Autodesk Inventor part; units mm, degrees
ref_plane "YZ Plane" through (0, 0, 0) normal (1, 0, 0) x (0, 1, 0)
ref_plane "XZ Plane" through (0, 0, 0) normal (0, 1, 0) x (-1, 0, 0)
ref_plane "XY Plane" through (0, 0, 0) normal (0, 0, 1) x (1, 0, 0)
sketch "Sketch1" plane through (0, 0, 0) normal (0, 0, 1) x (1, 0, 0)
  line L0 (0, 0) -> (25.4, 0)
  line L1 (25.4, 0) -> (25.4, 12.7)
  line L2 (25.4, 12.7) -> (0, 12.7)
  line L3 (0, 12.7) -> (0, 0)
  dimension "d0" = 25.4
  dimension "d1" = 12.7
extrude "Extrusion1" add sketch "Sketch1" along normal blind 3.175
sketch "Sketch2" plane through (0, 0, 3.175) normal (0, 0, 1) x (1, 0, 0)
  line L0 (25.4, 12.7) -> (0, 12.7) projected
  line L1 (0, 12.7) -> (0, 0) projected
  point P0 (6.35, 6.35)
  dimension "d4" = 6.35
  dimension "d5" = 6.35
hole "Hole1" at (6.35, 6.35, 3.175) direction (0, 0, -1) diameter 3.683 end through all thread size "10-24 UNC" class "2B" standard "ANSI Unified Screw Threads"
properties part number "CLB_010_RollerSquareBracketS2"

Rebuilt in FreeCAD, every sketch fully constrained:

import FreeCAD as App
import Part
import Sketcher
from FreeCAD import Vector
Q = App.Units.Quantity

doc = App.newDocument("Part")
params = doc.addObject("Spreadsheet::Sheet", "Params")
for row, (alias, value) in enumerate([
    ("sketch1_width", "1 in"),
    ("sketch1_height", "0.5 in"),
    ("pad1_length", "0.125 in"),
    ("sketch2_diameter", "0.145 in"),
    ("hole_diameter", "0.145 in"),
], start=1):
    params.set(f"A{row}", alias)
    params.set(f"B{row}", "=" + value)
    params.setAlias(f"B{row}", alias)

body = doc.addObject("PartDesign::Body", "Body")

sketch1 = doc.addObject("Sketcher::SketchObject", "Sketch")
body.addObject(sketch1)
sketch1.AttachmentSupport = (doc.XY_Plane, [""])
sketch1.MapMode = "FlatFace"
sketch1.addGeometry(Part.LineSegment(Vector(0, 13, 0), Vector(0, 0, 0)), False)
sketch1.addGeometry(Part.LineSegment(Vector(0, 0, 0), Vector(25, 0, 0)), False)
sketch1.addGeometry(Part.LineSegment(Vector(25, 0, 0), Vector(25, 13, 0)), False)
sketch1.addGeometry(Part.LineSegment(Vector(25, 13, 0), Vector(0, 13, 0)), False)
sketch1.addConstraint(Sketcher.Constraint("Coincident", 0, 2, 1, 1))
sketch1.addConstraint(Sketcher.Constraint("Coincident", 1, 2, 2, 1))
sketch1.addConstraint(Sketcher.Constraint("Coincident", 2, 2, 3, 1))
sketch1.addConstraint(Sketcher.Constraint("Coincident", 3, 2, 0, 1))
sketch1.addConstraint(Sketcher.Constraint("Vertical", 0))
sketch1.addConstraint(Sketcher.Constraint("Horizontal", 1))
sketch1.addConstraint(Sketcher.Constraint("Vertical", 2))
sketch1.addConstraint(Sketcher.Constraint("Horizontal", 3))
sketch1.addConstraint(Sketcher.Constraint("Coincident", 0, 2, -1, 1))
sketch1.addConstraint(Sketcher.Constraint("DistanceX", 1, 1, 1, 2, Q("1 in")))
sketch1.addConstraint(Sketcher.Constraint("DistanceY", 0, 2, 0, 1, Q("0.5 in")))
sketch1.setExpression("Constraints[9]", "Params.sketch1_width")
sketch1.setExpression("Constraints[10]", "Params.sketch1_height")
pad1 = doc.addObject("PartDesign::Pad", "Pad")
body.addObject(pad1)
pad1.Profile = sketch1
pad1.setExpression("Length", "Params.pad1_length")

sketch2 = doc.addObject("Sketcher::SketchObject", "Sketch001")
body.addObject(sketch2)
sketch2.AttachmentSupport = (doc.XY_Plane, [""])
sketch2.MapMode = "FlatFace"
sketch2.AttachmentOffset = App.Placement(Vector(0, 0, 0.125 * 25.4), App.Rotation())
sketch2.addGeometry(Part.Circle(Vector(6.3, 6.3, 0), Vector(0, 0, 1), 1.8), False)
sketch2.addConstraint(Sketcher.Constraint("Diameter", 0, Q("0.145 in")))
sketch2.addConstraint(Sketcher.Constraint("DistanceX", -1, 1, 0, 3, Q("0.25 in")))
sketch2.addConstraint(Sketcher.Constraint("DistanceY", -1, 1, 0, 3, Q("0.25 in")))
sketch2.setExpression("Constraints[0]", "Params.sketch2_diameter")
doc.recompute()
hole = doc.addObject("PartDesign::Hole", "Hole")
body.addObject(hole)
hole.Profile = sketch2
hole.ThreadType = "None"
hole.setExpression("Diameter", "Params.hole_diameter")
hole.DepthType = "ThroughAll"

doc.recompute()
